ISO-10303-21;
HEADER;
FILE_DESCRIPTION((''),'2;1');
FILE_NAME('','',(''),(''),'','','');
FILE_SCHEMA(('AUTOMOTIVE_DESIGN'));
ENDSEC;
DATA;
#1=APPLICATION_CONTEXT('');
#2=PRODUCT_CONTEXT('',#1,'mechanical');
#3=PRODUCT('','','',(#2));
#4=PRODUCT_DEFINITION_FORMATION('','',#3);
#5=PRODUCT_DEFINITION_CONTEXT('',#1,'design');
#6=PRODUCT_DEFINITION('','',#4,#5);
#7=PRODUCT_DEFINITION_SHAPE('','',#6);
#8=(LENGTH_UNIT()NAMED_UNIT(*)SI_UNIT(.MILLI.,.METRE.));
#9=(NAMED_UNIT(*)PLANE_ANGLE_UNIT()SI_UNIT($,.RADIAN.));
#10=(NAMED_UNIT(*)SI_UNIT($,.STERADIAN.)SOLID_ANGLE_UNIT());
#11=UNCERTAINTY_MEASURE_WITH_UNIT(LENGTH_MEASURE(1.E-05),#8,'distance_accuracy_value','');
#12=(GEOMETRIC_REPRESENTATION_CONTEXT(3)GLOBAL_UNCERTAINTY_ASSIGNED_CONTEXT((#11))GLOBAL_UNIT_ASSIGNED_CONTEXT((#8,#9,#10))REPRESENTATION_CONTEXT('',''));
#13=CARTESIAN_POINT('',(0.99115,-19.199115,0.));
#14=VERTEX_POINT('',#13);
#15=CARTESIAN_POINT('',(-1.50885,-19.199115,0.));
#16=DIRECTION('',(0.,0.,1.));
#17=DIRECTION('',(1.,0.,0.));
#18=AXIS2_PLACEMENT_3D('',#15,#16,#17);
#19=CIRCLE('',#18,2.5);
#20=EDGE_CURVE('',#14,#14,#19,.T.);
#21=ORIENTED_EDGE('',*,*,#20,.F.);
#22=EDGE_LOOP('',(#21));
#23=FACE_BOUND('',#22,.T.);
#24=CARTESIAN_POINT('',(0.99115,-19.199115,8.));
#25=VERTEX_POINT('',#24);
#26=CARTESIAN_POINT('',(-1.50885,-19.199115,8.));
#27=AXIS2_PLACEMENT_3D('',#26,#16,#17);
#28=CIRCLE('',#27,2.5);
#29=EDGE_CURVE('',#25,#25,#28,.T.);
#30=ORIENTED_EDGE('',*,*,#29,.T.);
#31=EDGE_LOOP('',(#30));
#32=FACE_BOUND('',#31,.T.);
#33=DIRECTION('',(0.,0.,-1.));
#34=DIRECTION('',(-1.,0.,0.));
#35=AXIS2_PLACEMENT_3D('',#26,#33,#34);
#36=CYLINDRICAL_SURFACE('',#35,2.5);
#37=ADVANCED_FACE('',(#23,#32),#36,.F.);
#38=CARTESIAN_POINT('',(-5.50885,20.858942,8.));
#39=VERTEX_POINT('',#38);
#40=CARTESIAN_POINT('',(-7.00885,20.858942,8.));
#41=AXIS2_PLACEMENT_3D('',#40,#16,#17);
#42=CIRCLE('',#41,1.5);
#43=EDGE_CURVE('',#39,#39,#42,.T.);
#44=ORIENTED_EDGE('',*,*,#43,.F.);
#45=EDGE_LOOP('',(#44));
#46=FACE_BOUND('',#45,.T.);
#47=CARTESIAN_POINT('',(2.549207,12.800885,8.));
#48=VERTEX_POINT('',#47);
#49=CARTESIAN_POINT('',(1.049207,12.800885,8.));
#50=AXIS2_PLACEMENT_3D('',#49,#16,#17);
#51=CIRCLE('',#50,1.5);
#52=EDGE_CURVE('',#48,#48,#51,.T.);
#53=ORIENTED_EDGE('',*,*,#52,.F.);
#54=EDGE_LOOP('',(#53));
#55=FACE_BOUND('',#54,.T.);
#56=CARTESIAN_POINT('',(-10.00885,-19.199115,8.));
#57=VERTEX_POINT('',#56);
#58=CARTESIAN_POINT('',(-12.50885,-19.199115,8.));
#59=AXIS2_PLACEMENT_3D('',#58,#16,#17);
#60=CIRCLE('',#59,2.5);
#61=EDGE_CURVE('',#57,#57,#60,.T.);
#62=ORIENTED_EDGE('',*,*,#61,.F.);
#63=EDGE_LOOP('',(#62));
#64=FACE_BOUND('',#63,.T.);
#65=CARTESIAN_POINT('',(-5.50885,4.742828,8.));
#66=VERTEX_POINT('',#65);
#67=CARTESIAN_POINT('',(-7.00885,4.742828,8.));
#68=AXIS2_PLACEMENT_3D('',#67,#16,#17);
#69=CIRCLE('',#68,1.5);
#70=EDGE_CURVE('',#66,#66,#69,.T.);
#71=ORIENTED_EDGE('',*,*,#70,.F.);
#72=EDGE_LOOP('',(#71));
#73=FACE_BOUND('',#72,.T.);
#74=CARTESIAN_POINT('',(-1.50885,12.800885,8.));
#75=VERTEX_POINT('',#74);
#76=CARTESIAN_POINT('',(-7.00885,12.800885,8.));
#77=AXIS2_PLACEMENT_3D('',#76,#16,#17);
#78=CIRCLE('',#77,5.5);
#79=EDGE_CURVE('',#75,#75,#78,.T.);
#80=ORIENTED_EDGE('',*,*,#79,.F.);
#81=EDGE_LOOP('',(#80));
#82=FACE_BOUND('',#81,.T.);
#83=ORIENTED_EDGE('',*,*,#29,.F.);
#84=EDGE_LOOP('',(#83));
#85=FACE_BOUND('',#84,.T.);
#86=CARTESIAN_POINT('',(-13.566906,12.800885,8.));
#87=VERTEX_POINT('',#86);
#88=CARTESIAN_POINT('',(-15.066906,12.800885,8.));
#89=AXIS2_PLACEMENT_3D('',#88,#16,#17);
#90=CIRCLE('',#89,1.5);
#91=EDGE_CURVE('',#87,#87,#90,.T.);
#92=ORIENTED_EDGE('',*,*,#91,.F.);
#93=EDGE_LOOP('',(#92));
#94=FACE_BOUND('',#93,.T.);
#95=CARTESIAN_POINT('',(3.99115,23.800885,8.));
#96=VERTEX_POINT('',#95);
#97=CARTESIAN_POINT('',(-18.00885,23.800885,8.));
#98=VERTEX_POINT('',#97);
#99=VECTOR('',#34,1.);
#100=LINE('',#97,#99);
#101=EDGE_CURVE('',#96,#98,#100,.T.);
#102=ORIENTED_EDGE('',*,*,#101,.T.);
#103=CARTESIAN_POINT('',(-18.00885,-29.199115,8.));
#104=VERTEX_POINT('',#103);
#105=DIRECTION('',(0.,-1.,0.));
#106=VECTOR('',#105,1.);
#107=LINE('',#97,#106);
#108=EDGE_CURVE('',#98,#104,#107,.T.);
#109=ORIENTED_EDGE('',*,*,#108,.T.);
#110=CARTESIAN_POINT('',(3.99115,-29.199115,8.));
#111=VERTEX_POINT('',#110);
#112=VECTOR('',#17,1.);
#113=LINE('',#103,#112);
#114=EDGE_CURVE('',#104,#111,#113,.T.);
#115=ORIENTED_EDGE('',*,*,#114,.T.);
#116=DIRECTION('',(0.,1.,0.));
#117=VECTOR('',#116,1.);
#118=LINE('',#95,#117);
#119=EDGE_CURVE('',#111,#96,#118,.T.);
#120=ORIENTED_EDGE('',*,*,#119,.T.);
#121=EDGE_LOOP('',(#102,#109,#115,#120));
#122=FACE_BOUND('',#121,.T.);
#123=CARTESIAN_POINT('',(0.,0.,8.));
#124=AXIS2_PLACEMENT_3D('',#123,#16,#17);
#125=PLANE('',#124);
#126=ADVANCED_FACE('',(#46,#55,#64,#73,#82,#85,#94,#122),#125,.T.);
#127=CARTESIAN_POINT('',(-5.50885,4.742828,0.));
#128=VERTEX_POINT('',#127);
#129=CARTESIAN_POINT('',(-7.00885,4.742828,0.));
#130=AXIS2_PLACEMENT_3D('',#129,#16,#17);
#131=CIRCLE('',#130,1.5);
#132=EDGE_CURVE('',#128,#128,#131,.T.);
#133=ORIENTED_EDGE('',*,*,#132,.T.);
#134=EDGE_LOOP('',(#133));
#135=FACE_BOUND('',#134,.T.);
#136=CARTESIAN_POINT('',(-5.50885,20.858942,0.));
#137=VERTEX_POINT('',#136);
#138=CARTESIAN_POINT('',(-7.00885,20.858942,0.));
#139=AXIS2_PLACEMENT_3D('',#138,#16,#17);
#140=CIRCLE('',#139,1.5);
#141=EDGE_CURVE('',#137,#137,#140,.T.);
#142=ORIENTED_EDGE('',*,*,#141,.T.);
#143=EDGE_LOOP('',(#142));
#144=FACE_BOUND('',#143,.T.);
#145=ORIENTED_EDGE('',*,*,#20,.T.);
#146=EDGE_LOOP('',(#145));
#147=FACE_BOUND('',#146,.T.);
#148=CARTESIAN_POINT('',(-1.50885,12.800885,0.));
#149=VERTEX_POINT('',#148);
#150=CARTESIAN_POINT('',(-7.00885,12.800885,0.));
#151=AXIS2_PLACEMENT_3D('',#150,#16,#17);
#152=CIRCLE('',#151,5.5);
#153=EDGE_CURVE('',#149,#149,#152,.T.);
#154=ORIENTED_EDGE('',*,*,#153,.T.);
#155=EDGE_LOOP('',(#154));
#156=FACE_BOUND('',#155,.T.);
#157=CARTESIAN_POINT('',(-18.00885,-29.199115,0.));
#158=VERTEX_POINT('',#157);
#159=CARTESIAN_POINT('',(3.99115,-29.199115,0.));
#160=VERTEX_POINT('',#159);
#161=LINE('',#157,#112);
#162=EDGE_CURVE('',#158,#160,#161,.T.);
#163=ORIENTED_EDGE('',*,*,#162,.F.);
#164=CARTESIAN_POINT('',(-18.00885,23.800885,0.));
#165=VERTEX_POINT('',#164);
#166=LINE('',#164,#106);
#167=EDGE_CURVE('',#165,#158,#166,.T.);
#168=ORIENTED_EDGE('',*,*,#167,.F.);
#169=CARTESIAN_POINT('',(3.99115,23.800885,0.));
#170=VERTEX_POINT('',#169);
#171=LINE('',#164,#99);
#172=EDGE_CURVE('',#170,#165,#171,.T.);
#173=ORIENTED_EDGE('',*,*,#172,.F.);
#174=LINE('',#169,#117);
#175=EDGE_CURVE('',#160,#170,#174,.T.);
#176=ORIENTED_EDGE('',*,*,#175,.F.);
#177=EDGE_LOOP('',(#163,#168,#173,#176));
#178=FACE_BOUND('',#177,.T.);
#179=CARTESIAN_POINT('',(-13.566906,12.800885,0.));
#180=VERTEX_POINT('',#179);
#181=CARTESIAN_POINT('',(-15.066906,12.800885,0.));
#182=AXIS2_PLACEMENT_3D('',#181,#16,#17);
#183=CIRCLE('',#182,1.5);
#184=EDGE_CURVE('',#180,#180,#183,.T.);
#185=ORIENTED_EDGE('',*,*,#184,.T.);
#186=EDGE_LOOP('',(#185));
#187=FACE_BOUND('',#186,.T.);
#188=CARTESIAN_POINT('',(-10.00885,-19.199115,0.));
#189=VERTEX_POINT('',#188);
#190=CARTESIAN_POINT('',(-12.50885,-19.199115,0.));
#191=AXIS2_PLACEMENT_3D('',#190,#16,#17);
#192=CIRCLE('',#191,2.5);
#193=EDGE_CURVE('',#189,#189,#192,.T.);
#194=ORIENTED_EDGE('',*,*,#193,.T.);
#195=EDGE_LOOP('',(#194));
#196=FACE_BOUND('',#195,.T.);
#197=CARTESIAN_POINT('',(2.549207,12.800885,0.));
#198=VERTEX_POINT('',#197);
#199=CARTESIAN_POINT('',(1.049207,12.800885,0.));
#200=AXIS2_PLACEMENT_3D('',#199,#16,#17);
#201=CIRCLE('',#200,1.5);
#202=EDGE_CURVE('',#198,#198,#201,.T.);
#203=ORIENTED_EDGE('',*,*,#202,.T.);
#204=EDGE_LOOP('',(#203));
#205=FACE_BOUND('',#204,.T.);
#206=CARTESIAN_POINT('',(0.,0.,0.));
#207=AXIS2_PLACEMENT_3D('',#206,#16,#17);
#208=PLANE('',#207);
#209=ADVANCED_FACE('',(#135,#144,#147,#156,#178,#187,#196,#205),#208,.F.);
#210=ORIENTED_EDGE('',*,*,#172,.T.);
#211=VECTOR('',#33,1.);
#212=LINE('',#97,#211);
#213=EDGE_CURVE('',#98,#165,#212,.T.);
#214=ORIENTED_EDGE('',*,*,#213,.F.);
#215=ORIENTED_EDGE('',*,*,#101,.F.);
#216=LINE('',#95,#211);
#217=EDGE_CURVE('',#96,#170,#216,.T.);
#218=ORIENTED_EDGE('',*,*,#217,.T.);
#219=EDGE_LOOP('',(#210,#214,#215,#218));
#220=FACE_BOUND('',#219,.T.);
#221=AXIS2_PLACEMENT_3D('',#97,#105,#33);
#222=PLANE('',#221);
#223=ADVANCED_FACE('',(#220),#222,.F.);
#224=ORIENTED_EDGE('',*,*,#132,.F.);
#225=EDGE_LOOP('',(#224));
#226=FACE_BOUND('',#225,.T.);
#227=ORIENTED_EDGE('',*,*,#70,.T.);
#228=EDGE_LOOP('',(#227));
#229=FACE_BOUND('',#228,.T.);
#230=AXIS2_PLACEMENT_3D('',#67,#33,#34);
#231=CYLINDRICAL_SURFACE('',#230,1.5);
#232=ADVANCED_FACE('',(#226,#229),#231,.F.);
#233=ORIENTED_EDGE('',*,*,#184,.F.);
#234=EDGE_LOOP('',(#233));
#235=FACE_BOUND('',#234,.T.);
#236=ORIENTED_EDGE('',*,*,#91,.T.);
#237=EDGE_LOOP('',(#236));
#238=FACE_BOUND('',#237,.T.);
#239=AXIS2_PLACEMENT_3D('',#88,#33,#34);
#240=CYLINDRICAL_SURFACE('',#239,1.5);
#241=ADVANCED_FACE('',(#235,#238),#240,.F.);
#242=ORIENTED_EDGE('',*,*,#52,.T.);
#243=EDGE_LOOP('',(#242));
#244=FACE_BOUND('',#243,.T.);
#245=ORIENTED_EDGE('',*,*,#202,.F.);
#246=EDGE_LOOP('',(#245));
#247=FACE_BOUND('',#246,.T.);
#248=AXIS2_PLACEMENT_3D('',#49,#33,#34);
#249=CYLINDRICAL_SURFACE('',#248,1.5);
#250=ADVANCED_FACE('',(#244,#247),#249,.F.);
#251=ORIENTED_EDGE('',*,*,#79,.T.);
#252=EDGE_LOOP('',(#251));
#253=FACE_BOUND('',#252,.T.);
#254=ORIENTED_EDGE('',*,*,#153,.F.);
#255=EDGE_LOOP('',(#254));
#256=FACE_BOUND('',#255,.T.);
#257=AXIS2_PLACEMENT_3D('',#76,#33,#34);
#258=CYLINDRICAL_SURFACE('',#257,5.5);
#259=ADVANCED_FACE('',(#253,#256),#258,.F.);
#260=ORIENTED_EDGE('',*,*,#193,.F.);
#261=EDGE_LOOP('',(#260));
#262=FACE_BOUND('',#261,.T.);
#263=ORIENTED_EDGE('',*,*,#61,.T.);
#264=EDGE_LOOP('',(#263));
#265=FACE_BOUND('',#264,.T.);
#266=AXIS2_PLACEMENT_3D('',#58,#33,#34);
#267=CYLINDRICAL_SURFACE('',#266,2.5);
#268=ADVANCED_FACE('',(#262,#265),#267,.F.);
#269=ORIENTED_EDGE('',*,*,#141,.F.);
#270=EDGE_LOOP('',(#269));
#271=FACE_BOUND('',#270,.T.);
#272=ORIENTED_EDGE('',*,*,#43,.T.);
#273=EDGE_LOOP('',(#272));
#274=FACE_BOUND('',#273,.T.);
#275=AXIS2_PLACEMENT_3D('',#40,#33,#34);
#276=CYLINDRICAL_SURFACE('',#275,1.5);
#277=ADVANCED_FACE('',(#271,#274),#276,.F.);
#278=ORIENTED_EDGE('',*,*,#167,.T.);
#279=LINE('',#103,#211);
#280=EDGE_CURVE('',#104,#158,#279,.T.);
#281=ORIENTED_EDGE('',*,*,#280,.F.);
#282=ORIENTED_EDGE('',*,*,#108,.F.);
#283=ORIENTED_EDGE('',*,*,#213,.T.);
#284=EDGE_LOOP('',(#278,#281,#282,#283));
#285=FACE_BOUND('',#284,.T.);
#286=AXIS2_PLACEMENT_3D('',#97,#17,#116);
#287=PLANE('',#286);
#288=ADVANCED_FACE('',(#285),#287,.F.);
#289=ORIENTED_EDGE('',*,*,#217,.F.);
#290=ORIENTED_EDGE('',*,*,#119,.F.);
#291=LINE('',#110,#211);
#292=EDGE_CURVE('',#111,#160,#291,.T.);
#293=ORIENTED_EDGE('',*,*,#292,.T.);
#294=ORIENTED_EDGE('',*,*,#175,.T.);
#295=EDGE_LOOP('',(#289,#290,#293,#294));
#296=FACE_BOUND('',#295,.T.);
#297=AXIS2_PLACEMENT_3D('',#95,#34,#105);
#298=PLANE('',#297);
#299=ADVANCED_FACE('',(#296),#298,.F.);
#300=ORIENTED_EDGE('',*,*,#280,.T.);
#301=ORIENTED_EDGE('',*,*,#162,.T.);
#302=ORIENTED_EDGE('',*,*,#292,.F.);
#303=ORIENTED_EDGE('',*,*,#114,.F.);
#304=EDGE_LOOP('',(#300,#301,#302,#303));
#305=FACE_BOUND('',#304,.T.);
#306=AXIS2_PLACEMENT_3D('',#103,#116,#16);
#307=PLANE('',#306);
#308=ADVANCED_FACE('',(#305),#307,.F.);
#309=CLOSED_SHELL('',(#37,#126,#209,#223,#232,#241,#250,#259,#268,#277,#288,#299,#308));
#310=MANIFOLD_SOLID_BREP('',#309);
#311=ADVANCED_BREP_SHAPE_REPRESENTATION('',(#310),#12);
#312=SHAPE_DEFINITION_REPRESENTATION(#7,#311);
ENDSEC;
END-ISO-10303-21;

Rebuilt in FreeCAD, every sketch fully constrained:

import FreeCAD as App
import Part
import Sketcher

doc = App.newDocument("Part")
params = doc.addObject("Spreadsheet::Sheet", "Params")
for row, (alias, value) in enumerate([
    ("sketch1_diameter", "5 mm"),
    ("sketch1_diameter2", "3 mm"),
    ("sketch1_diameter3", "11 mm"),
    ("sketch1_width", "22 mm"),
    ("sketch1_height", "53 mm"),
    ("pad1_length", "8 mm"),
], start=1):
    params.set(f"A{row}", alias)
    params.set(f"B{row}", "=" + value)
    params.setAlias(f"B{row}", alias)

body = doc.addObject("PartDesign::Body", "Body")

sketch1 = body.newObject("Sketcher::SketchObject", "Sketch")
sketch1.AttachmentSupport = (doc.getObject("XY_Plane"), [""])
sketch1.MapMode = "FlatFace"
sketch1.addGeometry([
    Part.LineSegment(App.Vector(-18.00885, 23.800885, 0), App.Vector(-18.00885, -29.199115, 0)),
    Part.LineSegment(App.Vector(-18.00885, -29.199115, 0), App.Vector(3.99115, -29.199115, 0)),
    Part.LineSegment(App.Vector(3.99115, -29.199115, 0), App.Vector(3.99115, 23.800885, 0)),
    Part.LineSegment(App.Vector(3.99115, 23.800885, 0), App.Vector(-18.00885, 23.800885, 0)),
    Part.Circle(App.Vector(-12.50885, -19.199115, 0), App.Vector(0, 0, 1), 2.5),
    Part.Circle(App.Vector(-1.50885, -19.199115, 0), App.Vector(0, 0, 1), 2.5),
    Part.Circle(App.Vector(-7.00885, 4.742828, 0), App.Vector(0, 0, 1), 1.5),
    Part.Circle(App.Vector(-15.066906, 12.800885, 0), App.Vector(0, 0, 1), 1.5),
    Part.Circle(App.Vector(-7.00885, 12.800885, 0), App.Vector(0, 0, 1), 5.5),
    Part.Circle(App.Vector(-7.00885, 20.858942, 0), App.Vector(0, 0, 1), 1.5),
    Part.Circle(App.Vector(1.049207, 12.800885, 0), App.Vector(0, 0, 1), 1.5),
], False)
sketch1.addConstraint([
    Sketcher.Constraint("Coincident", 0, 2, 1, 1),
    Sketcher.Constraint("Coincident", 1, 2, 2, 1),
    Sketcher.Constraint("Coincident", 2, 2, 3, 1),
    Sketcher.Constraint("Coincident", 3, 2, 0, 1),
    Sketcher.Constraint("Vertical", 0),
    Sketcher.Constraint("Horizontal", 1),
    Sketcher.Constraint("Vertical", 2),
    Sketcher.Constraint("Horizontal", 3),
    Sketcher.Constraint("Equal", 4, 5),
    Sketcher.Constraint("Equal", 6, 7),
    Sketcher.Constraint("Equal", 7, 9),
    Sketcher.Constraint("Equal", 9, 10),
    Sketcher.Constraint("Horizontal", 4, 3, 5, 3),
    Sketcher.Constraint("Horizontal", 7, 3, 8, 3),
    Sketcher.Constraint("Horizontal", 8, 3, 10, 3),
    Sketcher.Constraint("Vertical", 6, 3, 8, 3),
    Sketcher.Constraint("Vertical", 8, 3, 9, 3),
    Sketcher.Constraint("Diameter", 4, 5.0),
    Sketcher.Constraint("Diameter", 6, 3.0),
    Sketcher.Constraint("Diameter", 8, 11.0),
    Sketcher.Constraint("DistanceX", 1, 1, 1, 2, 22.0),
    Sketcher.Constraint("DistanceY", 0, 2, 0, 1, 53.0),
    Sketcher.Constraint("DistanceX", 4, 3, 5, 3, 11.0),
    Sketcher.Constraint("DistanceY", 4, 3, 7, 3, 32.0),
    Sketcher.Constraint("DistanceY", 0, 2, 4, 3, 10.0),
    Sketcher.Constraint("DistanceX", 0, 2, 6, 3, 11.0),
    Sketcher.Constraint("DistanceX", 4, 3, 6, 3, 5.5),
    Sketcher.Constraint("DistanceX", 4, 3, -1, 1, 12.50885),
    Sketcher.Constraint("DistanceY", -1, 1, 6, 3, 4.742828),
    Sketcher.Constraint("DistanceY", -1, 1, 9, 3, 20.858942),
    Sketcher.Constraint("DistanceY", 4, 3, -1, 1, 19.199115),
    Sketcher.Constraint("DistanceX", 7, 3, -1, 1, 15.066906),
    Sketcher.Constraint("DistanceX", -1, 1, 10, 3, 1.049207),
])
sketch1.setExpression("Constraints[17]", "Params.sketch1_diameter")
sketch1.setExpression("Constraints[18]", "Params.sketch1_diameter2")
sketch1.setExpression("Constraints[19]", "Params.sketch1_diameter3")
sketch1.setExpression("Constraints[20]", "Params.sketch1_width")
sketch1.setExpression("Constraints[21]", "Params.sketch1_height")
pad1 = body.newObject("PartDesign::Pad", "Pad")
pad1.Profile = sketch1
pad1.setExpression("Length", "Params.pad1_length")

doc.recompute()
